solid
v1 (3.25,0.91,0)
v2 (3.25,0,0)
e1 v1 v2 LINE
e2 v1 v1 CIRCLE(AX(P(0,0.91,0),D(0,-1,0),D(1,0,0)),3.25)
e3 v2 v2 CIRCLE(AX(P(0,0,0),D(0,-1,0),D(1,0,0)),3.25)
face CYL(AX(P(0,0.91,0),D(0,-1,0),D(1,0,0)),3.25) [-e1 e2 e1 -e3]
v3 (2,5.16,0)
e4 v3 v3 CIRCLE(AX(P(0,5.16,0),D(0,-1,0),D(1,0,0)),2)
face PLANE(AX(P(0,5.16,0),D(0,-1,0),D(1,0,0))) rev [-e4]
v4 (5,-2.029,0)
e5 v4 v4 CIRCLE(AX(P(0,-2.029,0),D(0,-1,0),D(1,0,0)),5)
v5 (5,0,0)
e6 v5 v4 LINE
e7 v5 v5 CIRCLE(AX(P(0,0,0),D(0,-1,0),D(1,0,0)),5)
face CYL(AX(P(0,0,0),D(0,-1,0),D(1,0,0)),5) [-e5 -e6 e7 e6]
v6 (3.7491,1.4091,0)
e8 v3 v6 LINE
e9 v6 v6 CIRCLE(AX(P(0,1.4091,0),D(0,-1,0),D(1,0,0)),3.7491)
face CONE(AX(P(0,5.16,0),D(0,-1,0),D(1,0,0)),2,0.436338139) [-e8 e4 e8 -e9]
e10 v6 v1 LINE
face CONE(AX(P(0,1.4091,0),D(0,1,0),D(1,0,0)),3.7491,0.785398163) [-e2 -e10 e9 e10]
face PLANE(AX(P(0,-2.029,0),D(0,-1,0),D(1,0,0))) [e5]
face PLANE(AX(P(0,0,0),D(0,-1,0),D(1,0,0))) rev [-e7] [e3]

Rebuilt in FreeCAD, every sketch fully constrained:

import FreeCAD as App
import Part
import Sketcher

V = App.Vector
Q = App.Units.Quantity

doc = App.newDocument("Part")
body = doc.addObject("PartDesign::Body", "Body")

# Sketch on XY plane
sketch1 = body.newObject("Sketcher::SketchObject", "Sketch")
sketch1.AttachmentSupport = (doc.getObject("XY_Plane"), [""])
sketch1.MapMode = "FlatFace"
sketch1.addGeometry([
    Part.LineSegment(V(0, 5.2, 0), V(0, -2, 0)),  # 0
    Part.LineSegment(V(0, -2, 0), V(5, -2, 0)),  # 1
    Part.LineSegment(V(5, -2, 0), V(5, 0, 0)),  # 2
    Part.LineSegment(V(5, 0, 0), V(3.2, 0, 0)),  # 3
    Part.LineSegment(V(3.2, 0, 0), V(3.2, 0.9, 0)),  # 4
    Part.LineSegment(V(3.2, 0.9, 0), V(3.7, 1.4, 0)),  # 5
    Part.LineSegment(V(3.7, 1.4, 0), V(2, 5.2, 0)),  # 6
    Part.LineSegment(V(2, 5.2, 0), V(0, 5.2, 0)),  # 7
], False)
sketch1.addConstraint([
    Sketcher.Constraint("Coincident", 0, 2, 1, 1),
    Sketcher.Constraint("Coincident", 1, 2, 2, 1),
    Sketcher.Constraint("Coincident", 2, 2, 3, 1),
    Sketcher.Constraint("Coincident", 3, 2, 4, 1),
    Sketcher.Constraint("Coincident", 4, 2, 5, 1),
    Sketcher.Constraint("Coincident", 5, 2, 6, 1),
    Sketcher.Constraint("Coincident", 6, 2, 7, 1),
    Sketcher.Constraint("Coincident", 7, 2, 0, 1),
    Sketcher.Constraint("Vertical", 0),
    Sketcher.Constraint("Horizontal", 1),
    Sketcher.Constraint("Vertical", 2),
    Sketcher.Constraint("Horizontal", 3),
    Sketcher.Constraint("Vertical", 4),
    Sketcher.Constraint("Horizontal", 7),
    Sketcher.Constraint("PointOnObject", 0, 2, -2),
    Sketcher.Constraint("PointOnObject", 2, 2, -1),
    Sketcher.Constraint("DistanceX", 1, 1, 1, 2, 5.0),
    Sketcher.Constraint("DistanceX", 7, 2, 7, 1, 2.0),
    Sketcher.Constraint("Angle", 5, Q("45 deg")),
    Sketcher.Constraint("Angle", 6, Q("115.0003 deg")),
    Sketcher.Constraint("DistanceX", 3, 2, 3, 1, 1.75),
    Sketcher.Constraint("DistanceY", 4, 1, 4, 2, 0.91),
    Sketcher.Constraint("DistanceY", 0, 2, 0, 1, 7.189),
    Sketcher.Constraint("DistanceY", 2, 1, 2, 2, 2.029),
])
revolution = body.newObject("PartDesign::Revolution", "Revolution")
revolution.Profile = sketch1
revolution.ReferenceAxis = (sketch1, ["V_Axis"])
revolution.Angle = 360

doc.recompute()
